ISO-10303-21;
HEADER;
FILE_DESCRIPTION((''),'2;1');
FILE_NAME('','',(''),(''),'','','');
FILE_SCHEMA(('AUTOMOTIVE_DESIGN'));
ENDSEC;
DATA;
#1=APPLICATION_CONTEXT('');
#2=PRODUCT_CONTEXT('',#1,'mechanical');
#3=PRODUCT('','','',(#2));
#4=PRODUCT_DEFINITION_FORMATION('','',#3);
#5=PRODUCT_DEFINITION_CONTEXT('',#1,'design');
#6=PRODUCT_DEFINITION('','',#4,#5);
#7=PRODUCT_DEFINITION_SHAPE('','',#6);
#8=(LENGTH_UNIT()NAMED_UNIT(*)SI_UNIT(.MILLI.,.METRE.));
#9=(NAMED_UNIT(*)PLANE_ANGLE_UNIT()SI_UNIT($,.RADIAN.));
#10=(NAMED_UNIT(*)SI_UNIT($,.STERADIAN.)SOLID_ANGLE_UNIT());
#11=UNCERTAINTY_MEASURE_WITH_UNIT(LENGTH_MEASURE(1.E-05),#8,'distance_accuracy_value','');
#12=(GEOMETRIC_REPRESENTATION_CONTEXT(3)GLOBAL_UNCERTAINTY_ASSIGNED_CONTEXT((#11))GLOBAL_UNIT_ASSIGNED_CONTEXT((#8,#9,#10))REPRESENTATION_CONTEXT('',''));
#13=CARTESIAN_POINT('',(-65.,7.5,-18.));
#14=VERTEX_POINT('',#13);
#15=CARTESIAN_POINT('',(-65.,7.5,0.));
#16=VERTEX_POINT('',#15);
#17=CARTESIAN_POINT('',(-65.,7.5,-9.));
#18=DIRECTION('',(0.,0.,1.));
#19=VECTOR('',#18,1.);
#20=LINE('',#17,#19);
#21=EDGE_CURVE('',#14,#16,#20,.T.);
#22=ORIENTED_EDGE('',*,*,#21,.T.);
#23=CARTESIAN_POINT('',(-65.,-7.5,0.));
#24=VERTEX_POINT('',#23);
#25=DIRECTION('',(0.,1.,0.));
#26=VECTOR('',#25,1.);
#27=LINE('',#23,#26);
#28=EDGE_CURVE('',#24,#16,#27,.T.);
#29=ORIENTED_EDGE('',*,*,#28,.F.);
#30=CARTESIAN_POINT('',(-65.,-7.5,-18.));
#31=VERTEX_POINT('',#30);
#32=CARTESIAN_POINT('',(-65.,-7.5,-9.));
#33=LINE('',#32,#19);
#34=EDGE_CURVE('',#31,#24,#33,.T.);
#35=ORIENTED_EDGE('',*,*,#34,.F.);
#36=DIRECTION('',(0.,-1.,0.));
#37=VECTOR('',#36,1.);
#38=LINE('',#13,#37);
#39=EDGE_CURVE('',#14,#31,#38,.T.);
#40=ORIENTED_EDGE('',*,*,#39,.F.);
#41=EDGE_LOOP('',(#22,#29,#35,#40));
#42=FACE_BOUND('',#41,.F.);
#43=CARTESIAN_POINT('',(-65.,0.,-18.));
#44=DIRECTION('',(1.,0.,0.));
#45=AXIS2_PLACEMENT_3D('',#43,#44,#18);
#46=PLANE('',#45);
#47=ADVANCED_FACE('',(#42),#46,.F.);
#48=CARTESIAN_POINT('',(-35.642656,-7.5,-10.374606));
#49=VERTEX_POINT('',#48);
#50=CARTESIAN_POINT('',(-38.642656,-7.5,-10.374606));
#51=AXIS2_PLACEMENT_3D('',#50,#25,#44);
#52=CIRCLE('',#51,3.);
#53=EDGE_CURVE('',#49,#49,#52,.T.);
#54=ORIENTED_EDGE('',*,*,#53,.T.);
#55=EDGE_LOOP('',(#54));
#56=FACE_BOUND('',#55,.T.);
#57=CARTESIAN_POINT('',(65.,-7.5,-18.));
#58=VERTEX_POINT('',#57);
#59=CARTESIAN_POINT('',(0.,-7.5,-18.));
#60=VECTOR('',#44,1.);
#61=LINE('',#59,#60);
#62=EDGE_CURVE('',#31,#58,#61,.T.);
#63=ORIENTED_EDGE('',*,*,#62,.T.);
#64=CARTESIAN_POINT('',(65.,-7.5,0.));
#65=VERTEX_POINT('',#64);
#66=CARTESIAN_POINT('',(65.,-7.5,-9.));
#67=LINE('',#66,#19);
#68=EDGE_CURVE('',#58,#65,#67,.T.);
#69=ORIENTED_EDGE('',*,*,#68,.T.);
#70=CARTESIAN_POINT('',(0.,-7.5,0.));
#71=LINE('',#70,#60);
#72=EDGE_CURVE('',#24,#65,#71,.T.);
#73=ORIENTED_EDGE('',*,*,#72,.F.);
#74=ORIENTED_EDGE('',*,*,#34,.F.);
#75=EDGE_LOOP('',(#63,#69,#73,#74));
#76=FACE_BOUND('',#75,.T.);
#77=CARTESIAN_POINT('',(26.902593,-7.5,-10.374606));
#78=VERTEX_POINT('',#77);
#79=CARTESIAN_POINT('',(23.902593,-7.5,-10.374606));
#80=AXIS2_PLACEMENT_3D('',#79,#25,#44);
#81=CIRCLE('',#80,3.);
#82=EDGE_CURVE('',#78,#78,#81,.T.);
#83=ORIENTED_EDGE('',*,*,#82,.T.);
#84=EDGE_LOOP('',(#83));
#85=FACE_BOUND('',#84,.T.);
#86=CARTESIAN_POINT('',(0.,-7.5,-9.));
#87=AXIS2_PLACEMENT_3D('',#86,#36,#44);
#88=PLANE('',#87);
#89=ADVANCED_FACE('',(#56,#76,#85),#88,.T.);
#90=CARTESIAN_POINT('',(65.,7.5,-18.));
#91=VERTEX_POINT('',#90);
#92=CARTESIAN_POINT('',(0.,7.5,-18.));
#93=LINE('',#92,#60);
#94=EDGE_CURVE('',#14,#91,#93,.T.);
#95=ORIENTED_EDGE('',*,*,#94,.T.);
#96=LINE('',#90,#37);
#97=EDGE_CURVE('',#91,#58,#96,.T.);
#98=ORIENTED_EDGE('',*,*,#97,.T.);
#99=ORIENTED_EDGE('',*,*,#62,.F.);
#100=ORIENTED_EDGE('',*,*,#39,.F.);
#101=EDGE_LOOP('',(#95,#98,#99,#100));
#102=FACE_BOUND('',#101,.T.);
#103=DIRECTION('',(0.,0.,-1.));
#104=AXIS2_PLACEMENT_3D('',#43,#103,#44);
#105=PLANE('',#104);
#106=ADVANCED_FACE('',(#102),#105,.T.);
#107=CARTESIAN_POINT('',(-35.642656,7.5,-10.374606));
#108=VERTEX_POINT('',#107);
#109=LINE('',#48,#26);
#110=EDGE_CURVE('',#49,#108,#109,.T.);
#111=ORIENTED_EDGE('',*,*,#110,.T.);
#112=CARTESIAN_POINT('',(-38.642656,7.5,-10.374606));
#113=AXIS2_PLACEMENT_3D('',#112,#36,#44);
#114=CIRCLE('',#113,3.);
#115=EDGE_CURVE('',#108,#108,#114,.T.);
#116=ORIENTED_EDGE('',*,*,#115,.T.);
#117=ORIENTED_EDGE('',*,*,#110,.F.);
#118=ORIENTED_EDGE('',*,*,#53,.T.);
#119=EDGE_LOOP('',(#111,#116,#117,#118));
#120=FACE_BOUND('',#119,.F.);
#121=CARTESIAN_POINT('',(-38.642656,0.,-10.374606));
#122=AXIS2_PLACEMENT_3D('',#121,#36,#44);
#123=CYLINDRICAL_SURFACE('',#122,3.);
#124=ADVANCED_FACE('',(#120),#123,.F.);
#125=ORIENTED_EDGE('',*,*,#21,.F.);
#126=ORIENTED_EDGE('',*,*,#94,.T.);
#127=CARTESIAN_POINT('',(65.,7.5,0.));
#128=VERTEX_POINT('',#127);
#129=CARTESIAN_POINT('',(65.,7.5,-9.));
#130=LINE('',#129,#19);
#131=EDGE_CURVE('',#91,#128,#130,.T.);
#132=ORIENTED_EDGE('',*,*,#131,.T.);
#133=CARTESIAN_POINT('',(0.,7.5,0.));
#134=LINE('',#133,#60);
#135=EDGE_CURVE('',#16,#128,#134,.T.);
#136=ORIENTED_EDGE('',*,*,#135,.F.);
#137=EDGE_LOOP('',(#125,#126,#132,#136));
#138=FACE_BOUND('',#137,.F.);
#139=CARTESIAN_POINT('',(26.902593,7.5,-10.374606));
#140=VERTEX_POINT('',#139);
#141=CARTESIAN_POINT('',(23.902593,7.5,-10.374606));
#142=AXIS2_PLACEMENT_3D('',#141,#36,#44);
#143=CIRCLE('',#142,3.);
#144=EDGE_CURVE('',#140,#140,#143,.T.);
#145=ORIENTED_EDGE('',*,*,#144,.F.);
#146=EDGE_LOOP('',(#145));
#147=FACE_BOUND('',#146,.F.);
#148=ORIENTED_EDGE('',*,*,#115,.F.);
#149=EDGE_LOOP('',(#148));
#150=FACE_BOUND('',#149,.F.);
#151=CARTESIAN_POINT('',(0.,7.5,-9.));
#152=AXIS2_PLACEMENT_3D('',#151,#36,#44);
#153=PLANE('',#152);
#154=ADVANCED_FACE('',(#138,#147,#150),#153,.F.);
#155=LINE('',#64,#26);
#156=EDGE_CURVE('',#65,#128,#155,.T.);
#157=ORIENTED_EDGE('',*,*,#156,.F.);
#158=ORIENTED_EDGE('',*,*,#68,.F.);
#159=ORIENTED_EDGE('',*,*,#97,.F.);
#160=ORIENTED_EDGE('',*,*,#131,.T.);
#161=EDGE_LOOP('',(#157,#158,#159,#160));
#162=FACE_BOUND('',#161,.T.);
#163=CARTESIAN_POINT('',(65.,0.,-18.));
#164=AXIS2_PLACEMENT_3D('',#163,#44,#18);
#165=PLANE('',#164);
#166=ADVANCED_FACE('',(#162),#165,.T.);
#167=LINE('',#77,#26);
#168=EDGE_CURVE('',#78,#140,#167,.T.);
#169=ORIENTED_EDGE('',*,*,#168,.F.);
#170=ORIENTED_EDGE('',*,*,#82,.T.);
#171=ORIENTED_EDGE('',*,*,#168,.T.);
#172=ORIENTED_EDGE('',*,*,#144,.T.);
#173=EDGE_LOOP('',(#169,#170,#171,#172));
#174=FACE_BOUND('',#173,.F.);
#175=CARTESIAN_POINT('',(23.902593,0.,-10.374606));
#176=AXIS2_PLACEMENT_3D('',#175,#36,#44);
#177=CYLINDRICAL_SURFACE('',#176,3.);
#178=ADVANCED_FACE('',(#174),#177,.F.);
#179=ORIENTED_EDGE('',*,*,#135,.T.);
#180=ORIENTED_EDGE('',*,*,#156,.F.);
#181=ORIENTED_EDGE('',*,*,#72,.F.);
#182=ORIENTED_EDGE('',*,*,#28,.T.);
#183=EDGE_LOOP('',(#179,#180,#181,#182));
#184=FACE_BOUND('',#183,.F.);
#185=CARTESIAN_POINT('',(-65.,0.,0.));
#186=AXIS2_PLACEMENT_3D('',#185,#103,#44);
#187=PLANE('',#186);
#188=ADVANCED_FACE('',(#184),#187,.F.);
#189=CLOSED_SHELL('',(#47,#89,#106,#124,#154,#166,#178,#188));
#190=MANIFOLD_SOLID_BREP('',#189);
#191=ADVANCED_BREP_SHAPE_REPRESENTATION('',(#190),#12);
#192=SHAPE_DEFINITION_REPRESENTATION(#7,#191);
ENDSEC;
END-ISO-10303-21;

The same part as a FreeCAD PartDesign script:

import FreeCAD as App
import Part
import Sketcher

V = App.Vector


def add_polygon(sketch, points):
    """Adds a closed chain of lines whose ends are joined by coincident constraints."""
    first, n = sketch.GeometryCount, len(points)
    for a, b in zip(points, points[1:] + points[:1]):
        sketch.addGeometry(Part.LineSegment(App.Vector(*a, 0), App.Vector(*b, 0)), False)
    for i in range(n):
        sketch.addConstraint(Sketcher.Constraint("Coincident", first + i, 2, first + (i + 1) % n, 1))

doc = App.newDocument("Part")
body = doc.addObject("PartDesign::Body", "Body")

sketch1 = body.newObject("Sketcher::SketchObject", "Sketch")
sketch1.AttachmentSupport = (doc.getObject("XZ_Plane"), [""])
sketch1.MapMode = "FlatFace"
add_polygon(sketch1, [(-65, 0), (-65, -18), (65, -18), (65, 0)])
sketch1.addConstraint(Sketcher.Constraint("Vertical", 0))
sketch1.addConstraint(Sketcher.Constraint("Horizontal", 1))
sketch1.addConstraint(Sketcher.Constraint("Vertical", 2))
sketch1.addConstraint(Sketcher.Constraint("Horizontal", 3))
sketch1.addConstraint(Sketcher.Constraint("Symmetric", 2, 2, 3, 2, -1, 1))
sketch1.addConstraint(Sketcher.Constraint("DistanceX", 1, 1, 1, 2, 130.0))
sketch1.addConstraint(Sketcher.Constraint("DistanceY", 0, 2, 0, 1, 18.0))
pad1 = body.newObject("PartDesign::Pad", "Pad")
pad1.Profile = sketch1
pad1.Length = 15
pad1.Midplane = True

sketch2 = body.newObject("Sketcher::SketchObject", "Sketch001")
sketch2.AttachmentSupport = (doc.getObject("XZ_Plane"), [""])
sketch2.MapMode = "FlatFace"
sketch2.addGeometry(Part.Circle(V(-38.6, -10.4, 0), V(0, 0, 1), 3), False)
sketch2.addGeometry(Part.Circle(V(23.9, -10.4, 0), V(0, 0, 1), 3), False)
sketch2.addConstraint(Sketcher.Constraint("Equal", 0, 1))
sketch2.addConstraint(Sketcher.Constraint("Horizontal", 0, 3, 1, 3))
sketch2.addConstraint(Sketcher.Constraint("Diameter", 0, 6.0))
sketch2.addConstraint(Sketcher.Constraint("DistanceX", 0, 3, 1, 3, 62.545249))
sketch2.addConstraint(Sketcher.Constraint("DistanceX", 0, 3, -1, 1, 38.642656))
sketch2.addConstraint(Sketcher.Constraint("DistanceY", 0, 3, -1, 1, 10.374606))
pocket1 = body.newObject("PartDesign::Pocket", "Pocket")
pocket1.Profile = sketch2
pocket1.Type = "ThroughAll"
pocket1.Midplane = True

doc.recompute()
